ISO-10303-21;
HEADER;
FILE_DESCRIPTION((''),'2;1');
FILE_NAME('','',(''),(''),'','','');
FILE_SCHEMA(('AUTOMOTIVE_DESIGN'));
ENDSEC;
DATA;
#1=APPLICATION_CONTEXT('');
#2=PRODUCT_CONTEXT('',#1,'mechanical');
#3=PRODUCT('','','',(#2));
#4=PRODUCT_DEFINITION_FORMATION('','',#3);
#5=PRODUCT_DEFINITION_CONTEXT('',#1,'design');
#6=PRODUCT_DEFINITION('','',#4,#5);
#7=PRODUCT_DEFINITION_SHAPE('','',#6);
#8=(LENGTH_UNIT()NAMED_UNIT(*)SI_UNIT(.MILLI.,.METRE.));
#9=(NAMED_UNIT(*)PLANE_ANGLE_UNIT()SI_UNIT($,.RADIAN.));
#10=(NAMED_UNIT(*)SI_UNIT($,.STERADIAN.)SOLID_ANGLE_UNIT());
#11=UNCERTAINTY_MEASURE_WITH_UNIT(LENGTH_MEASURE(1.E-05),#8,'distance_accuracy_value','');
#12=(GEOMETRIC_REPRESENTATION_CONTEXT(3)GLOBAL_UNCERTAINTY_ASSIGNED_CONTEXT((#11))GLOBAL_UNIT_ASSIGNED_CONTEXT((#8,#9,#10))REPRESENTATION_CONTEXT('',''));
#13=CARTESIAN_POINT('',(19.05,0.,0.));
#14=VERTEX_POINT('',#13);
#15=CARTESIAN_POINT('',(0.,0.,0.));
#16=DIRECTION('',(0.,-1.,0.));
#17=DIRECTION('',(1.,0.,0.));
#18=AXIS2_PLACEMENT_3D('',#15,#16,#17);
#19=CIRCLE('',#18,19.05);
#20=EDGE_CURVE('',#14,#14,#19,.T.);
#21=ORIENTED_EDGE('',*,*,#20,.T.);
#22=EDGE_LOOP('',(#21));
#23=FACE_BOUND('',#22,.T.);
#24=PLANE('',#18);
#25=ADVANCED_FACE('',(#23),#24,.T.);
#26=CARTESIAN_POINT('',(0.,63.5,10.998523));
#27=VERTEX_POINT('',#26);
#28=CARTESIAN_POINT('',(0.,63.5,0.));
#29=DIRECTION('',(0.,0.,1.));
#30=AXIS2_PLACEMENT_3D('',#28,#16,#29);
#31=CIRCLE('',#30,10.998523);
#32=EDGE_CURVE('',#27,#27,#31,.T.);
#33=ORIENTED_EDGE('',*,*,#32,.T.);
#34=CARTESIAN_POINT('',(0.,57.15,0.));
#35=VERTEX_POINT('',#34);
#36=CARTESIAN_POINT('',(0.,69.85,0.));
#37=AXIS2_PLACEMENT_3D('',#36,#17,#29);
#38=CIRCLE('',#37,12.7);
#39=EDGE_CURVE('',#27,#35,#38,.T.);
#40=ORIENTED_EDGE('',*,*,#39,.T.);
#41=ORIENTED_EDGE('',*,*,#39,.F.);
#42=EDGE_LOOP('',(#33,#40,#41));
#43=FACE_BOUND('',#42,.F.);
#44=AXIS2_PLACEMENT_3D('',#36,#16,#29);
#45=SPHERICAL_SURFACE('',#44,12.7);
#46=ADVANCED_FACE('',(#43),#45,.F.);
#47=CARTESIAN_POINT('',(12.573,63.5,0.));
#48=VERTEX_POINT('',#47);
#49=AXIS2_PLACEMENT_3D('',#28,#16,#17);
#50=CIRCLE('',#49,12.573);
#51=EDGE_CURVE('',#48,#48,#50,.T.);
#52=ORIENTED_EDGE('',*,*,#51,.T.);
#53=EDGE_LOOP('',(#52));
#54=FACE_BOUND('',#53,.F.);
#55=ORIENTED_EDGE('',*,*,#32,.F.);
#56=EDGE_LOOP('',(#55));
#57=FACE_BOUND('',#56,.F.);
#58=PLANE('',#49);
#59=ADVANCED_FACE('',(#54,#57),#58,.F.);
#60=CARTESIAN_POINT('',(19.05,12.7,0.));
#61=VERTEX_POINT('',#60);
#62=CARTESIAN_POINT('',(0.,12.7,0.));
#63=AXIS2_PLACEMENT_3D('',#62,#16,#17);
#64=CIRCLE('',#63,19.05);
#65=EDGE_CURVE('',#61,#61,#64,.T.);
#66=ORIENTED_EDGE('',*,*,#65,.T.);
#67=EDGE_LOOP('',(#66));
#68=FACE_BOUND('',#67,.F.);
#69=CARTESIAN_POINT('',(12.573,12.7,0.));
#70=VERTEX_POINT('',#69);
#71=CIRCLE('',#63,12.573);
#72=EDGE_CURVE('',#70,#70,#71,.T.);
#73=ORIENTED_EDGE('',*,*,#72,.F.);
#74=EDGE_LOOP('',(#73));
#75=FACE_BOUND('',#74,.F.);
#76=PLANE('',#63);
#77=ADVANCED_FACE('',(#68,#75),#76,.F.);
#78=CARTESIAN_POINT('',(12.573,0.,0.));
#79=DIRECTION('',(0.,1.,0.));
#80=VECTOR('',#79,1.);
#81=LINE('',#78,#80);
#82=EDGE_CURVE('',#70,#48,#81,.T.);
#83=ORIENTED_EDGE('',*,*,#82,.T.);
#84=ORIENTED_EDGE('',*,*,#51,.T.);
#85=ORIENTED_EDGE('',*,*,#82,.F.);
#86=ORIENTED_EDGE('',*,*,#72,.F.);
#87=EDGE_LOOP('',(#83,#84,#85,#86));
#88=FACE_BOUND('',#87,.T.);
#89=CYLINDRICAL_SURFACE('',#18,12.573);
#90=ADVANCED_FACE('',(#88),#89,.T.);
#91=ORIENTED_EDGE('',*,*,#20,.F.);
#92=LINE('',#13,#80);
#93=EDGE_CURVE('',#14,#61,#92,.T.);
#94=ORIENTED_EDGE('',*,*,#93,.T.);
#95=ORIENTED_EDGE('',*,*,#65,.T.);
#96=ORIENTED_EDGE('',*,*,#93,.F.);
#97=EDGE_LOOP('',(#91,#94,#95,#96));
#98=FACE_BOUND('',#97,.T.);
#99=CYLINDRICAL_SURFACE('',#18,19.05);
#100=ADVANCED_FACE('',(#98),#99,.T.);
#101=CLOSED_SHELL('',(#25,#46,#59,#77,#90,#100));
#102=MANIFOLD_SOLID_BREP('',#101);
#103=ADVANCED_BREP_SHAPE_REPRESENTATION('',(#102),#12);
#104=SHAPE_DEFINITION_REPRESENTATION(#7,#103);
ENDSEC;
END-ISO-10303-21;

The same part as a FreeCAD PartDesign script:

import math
import FreeCAD as App
import Part
import Sketcher

V = App.Vector
Q = App.Units.Quantity

doc = App.newDocument("Part")
body = doc.addObject("PartDesign::Body", "Body")

sketch1 = body.newObject("Sketcher::SketchObject", "Sketch")
sketch1.AttachmentSupport = (doc.getObject("XZ_Plane"), [""])
sketch1.MapMode = "FlatFace"
sketch1.addGeometry(Part.Circle(V(0, 0, 0), V(0, 0, 1), 19.05), False)
sketch1.addConstraint(Sketcher.Constraint("Coincident", 0, 3, -1, 1))
sketch1.addConstraint(Sketcher.Constraint("Diameter", 0, Q("1.5 in")))
pad1 = body.newObject("PartDesign::Pad", "Pad")
pad1.Profile = sketch1
pad1.Length = Q("0.5 in")
pad1.Reversed = True

sketch2 = body.newObject("Sketcher::SketchObject", "Sketch001")
sketch2.AttachmentSupport = (doc.getObject("XZ_Plane"), [""])
sketch2.MapMode = "FlatFace"
sketch2.addGeometry(Part.Circle(V(0, 0, 0), V(0, 0, 1), 12.573), False)
sketch2.addConstraint(Sketcher.Constraint("Coincident", 0, 3, -1, 1))
sketch2.addConstraint(Sketcher.Constraint("Diameter", 0, Q("0.99 in")))
pad2 = body.newObject("PartDesign::Pad", "Pad001")
pad2.Profile = sketch2
pad2.Length = Q("2.5 in")
pad2.Reversed = True

sketch3 = body.newObject("Sketcher::SketchObject", "Sketch002")
sketch3.AttachmentSupport = (doc.getObject("YZ_Plane"), [""])
sketch3.MapMode = "FlatFace"
sketch3.addGeometry(Part.LineSegment(V(69.85, 0, 0), V(69.85, 12.7, 0)), False)
sketch3.addGeometry(Part.ArcOfCircle(Part.Circle(V(69.85, 0, 0), V(0, 0, 1), 12.7), math.radians(90), math.radians(180)), False)
sketch3.addGeometry(Part.LineSegment(V(57.15, 0, 0), V(69.85, 0, 0)), False)
sketch3.addConstraint(Sketcher.Constraint("Coincident", 0, 2, 1, 1))
sketch3.addConstraint(Sketcher.Constraint("Coincident", 1, 2, 2, 1))
sketch3.addConstraint(Sketcher.Constraint("Coincident", 2, 2, 0, 1))
sketch3.addConstraint(Sketcher.Constraint("Vertical", 0))
sketch3.addConstraint(Sketcher.Constraint("Horizontal", 2))
sketch3.addConstraint(Sketcher.Constraint("Coincident", 2, 2, 1, 3))
sketch3.addConstraint(Sketcher.Constraint("PointOnObject", 1, 3, -1))
sketch3.addConstraint(Sketcher.Constraint("Radius", 1, Q("0.5 in")))
sketch3.addConstraint(Sketcher.Constraint("DistanceX", -1, 1, 1, 3, Q("2.75 in")))
groove = body.newObject("PartDesign::Groove", "Groove")
groove.Profile = sketch3
groove.ReferenceAxis = (sketch3, ["H_Axis"])
groove.Angle = 360

doc.recompute()
